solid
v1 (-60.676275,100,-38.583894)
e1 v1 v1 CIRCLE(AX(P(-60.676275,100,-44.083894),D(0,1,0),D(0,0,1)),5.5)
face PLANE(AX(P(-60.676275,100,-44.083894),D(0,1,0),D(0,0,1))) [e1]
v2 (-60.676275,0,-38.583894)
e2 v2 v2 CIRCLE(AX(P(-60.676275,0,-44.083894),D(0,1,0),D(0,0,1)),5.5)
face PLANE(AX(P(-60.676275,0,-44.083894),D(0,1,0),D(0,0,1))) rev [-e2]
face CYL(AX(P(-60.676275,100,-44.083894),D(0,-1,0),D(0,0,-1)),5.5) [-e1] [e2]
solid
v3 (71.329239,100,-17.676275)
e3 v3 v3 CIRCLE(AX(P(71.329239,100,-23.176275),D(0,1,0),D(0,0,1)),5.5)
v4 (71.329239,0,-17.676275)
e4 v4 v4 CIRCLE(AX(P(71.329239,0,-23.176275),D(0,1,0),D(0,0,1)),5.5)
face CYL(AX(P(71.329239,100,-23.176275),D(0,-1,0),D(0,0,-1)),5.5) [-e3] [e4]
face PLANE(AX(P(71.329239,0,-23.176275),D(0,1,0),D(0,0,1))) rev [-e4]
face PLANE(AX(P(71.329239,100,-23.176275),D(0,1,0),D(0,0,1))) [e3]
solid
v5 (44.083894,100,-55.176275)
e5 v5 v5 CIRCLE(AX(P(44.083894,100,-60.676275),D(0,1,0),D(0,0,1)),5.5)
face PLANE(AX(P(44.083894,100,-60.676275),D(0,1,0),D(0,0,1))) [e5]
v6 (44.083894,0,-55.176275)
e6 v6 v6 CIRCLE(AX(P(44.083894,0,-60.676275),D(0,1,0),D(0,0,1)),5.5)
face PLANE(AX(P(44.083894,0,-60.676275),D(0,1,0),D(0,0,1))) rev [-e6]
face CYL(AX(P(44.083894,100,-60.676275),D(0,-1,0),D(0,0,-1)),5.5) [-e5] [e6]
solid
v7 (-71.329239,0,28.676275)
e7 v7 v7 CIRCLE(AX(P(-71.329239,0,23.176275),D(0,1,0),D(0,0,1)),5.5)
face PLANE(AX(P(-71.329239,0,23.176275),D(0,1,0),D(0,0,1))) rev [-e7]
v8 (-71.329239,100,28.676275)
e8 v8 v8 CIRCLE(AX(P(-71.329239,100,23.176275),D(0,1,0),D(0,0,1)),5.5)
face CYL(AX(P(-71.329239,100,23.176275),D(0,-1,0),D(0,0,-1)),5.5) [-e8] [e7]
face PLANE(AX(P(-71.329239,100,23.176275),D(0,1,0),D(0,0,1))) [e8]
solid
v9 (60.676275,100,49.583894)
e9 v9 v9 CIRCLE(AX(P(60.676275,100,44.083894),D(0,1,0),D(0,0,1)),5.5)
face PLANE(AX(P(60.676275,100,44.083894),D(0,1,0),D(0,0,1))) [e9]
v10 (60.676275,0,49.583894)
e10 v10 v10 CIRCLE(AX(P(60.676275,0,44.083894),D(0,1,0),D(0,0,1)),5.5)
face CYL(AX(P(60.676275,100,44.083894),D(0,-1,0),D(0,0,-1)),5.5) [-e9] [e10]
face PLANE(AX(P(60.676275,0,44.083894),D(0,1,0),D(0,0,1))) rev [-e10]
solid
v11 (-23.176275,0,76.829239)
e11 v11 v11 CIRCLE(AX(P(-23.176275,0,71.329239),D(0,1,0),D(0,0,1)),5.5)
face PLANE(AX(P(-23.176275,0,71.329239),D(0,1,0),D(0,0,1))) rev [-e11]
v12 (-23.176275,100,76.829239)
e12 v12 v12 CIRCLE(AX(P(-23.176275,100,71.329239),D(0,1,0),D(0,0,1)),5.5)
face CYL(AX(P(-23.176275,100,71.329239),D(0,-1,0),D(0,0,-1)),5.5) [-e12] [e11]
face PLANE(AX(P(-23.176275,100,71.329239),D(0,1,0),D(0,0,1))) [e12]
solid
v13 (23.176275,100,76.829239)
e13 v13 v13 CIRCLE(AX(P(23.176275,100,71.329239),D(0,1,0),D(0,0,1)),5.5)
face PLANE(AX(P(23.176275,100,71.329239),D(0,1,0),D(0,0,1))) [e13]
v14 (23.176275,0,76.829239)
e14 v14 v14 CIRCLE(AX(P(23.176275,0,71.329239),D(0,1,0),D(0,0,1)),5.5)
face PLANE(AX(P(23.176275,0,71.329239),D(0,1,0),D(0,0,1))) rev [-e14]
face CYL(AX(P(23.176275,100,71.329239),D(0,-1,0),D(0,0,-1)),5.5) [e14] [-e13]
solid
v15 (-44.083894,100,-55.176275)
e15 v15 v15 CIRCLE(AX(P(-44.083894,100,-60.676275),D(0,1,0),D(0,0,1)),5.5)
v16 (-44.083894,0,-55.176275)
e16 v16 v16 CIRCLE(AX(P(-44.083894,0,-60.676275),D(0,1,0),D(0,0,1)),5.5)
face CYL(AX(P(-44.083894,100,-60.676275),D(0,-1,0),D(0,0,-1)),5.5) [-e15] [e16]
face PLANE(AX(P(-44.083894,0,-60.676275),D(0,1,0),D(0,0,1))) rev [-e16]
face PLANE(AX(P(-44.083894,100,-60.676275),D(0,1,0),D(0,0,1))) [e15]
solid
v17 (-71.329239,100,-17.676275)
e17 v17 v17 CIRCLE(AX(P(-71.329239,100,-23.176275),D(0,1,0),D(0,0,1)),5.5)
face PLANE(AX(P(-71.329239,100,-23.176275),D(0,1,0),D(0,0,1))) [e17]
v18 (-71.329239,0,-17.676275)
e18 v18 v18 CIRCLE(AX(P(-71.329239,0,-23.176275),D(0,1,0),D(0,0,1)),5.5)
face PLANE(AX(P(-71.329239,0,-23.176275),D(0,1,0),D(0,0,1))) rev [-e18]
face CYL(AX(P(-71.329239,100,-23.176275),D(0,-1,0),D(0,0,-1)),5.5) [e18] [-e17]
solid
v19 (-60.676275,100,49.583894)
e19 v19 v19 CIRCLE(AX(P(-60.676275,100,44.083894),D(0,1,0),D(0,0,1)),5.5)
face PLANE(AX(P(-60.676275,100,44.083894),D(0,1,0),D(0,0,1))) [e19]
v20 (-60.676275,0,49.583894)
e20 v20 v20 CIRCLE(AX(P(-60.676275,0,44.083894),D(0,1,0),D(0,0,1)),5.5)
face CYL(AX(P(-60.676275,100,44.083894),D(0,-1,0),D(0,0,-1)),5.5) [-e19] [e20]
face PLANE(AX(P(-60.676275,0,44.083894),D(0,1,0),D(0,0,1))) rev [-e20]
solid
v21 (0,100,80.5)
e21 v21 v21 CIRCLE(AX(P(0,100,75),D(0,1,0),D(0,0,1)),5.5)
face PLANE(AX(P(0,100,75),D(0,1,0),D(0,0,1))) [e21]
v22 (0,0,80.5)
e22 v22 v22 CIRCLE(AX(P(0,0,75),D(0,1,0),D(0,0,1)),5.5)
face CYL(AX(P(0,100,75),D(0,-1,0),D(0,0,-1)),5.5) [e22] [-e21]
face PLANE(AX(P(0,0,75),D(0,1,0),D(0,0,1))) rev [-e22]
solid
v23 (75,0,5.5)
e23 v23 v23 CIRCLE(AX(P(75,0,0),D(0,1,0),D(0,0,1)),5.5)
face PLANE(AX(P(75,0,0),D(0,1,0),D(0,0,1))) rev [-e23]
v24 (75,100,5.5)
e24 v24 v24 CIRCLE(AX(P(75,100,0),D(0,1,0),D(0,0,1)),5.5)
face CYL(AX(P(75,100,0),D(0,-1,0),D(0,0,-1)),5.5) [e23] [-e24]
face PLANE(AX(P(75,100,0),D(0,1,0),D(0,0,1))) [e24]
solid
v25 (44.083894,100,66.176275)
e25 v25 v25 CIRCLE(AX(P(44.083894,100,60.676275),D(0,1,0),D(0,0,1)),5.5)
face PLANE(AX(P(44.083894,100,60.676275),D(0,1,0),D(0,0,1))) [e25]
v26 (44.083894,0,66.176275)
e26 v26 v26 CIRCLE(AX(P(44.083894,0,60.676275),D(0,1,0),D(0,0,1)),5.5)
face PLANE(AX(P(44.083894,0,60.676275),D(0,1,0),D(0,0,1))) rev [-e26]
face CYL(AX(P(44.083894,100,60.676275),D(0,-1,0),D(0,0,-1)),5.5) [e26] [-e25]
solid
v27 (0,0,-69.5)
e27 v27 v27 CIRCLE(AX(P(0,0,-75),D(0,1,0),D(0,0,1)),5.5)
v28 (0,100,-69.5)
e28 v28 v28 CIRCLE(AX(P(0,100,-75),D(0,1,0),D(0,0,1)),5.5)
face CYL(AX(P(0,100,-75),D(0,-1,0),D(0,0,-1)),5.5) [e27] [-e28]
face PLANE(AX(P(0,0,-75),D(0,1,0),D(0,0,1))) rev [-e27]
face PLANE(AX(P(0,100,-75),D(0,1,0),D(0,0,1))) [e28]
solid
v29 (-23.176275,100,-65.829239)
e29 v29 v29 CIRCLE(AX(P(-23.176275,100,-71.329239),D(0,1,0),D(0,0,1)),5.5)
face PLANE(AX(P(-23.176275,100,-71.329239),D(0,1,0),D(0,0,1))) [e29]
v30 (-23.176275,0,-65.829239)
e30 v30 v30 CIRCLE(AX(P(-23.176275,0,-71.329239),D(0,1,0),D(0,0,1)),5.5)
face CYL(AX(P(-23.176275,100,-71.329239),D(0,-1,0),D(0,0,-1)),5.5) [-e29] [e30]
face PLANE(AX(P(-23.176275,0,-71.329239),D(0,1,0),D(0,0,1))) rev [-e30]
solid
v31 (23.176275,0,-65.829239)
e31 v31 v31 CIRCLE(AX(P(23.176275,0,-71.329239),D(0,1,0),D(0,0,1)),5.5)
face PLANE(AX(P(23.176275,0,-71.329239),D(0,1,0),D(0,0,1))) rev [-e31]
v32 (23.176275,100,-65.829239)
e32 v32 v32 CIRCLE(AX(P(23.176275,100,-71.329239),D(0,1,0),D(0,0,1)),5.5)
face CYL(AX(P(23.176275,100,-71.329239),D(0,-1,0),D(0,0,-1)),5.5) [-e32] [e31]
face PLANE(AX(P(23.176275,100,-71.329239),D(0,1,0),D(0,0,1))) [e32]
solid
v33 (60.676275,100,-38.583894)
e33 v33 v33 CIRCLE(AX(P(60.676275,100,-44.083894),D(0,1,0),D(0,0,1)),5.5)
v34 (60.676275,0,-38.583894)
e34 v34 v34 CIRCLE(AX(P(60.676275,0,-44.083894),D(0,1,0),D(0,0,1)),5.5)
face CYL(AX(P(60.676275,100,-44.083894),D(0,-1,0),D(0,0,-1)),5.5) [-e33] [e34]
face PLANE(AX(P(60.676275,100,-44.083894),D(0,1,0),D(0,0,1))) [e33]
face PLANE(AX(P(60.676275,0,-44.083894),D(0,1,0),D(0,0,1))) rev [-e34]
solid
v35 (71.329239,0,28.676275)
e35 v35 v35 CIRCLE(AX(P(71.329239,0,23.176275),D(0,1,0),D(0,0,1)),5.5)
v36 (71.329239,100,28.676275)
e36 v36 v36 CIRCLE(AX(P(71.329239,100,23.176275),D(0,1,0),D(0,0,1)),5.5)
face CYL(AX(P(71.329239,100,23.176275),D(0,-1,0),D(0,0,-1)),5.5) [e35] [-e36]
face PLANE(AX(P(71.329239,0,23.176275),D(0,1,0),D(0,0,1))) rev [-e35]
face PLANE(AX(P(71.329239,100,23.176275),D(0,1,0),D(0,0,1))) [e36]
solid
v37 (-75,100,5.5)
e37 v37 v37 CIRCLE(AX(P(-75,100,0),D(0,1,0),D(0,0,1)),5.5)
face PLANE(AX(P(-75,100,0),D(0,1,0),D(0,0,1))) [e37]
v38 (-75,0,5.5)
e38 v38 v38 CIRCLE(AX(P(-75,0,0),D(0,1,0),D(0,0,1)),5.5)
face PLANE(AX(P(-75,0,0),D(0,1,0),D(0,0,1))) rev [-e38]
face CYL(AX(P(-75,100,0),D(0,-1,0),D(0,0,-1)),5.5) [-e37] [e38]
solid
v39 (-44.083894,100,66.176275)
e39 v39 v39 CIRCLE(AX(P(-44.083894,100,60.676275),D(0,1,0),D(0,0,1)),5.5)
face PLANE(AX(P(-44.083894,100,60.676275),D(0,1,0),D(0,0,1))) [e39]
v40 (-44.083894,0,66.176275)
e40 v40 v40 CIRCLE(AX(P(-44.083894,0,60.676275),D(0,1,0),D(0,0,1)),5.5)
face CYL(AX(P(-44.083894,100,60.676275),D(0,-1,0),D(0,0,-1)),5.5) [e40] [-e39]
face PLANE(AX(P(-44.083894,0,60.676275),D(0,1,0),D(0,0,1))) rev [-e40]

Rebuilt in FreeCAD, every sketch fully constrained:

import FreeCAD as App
import Part
import Sketcher
Q = App.Units.Quantity

doc = App.newDocument("Part")
body = doc.addObject("PartDesign::Body", "Body")

# Sketch on XZ plane
sketch1 = doc.addObject("Sketcher::SketchObject", "Sketch")
body.addObject(sketch1)
sketch1.AttachmentSupport = (doc.XZ_Plane, [""])
sketch1.MapMode = "FlatFace"
sketch1.addGeometry(Part.Circle(App.Vector(0, -75, 0), App.Vector(0, 0, 1), 6), False)
sketch1.addConstraint(Sketcher.Constraint("PointOnObject", 0, 3, -2))
sketch1.addConstraint(Sketcher.Constraint("Diameter", 0, Q("11 mm")))
sketch1.addConstraint(Sketcher.Constraint("DistanceY", 0, 3, -1, 1, Q("75 mm")))
pad1 = doc.addObject("PartDesign::Pad", "Pad")
body.addObject(pad1)
pad1.Profile = sketch1
pad1.Length = 100
pad1.Reversed = True
body2 = doc.addObject("PartDesign::Body", "Body001")

# Sketch on XZ plane
sketch2 = doc.addObject("Sketcher::SketchObject", "Sketch001")
body2.addObject(sketch2)
sketch2.AttachmentSupport = (doc.getObject("XZ_Plane001"), [""])
sketch2.MapMode = "FlatFace"
sketch2.addGeometry(Part.Circle(App.Vector(23, -71, 0), App.Vector(0, 0, 1), 6), False)
sketch2.addConstraint(Sketcher.Constraint("Diameter", 0, Q("11 mm")))
sketch2.addConstraint(Sketcher.Constraint("DistanceY", 0, 3, -1, 1, Q("71.329239 mm")))
sketch2.addConstraint(Sketcher.Constraint("DistanceX", -1, 1, 0, 3, Q("23.176275 mm")))
pad2 = doc.addObject("PartDesign::Pad", "Pad001")
body2.addObject(pad2)
pad2.Profile = sketch2
pad2.Length = 100
pad2.Reversed = True
body3 = doc.addObject("PartDesign::Body", "Body002")

# Sketch on XZ plane
sketch3 = doc.addObject("Sketcher::SketchObject", "Sketch002")
body3.addObject(sketch3)
sketch3.AttachmentSupport = (doc.getObject("XZ_Plane002"), [""])
sketch3.MapMode = "FlatFace"
sketch3.addGeometry(Part.Circle(App.Vector(44, -61, 0), App.Vector(0, 0, 1), 6), False)
sketch3.addConstraint(Sketcher.Constraint("Diameter", 0, Q("11 mm")))
sketch3.addConstraint(Sketcher.Constraint("DistanceX", -1, 1, 0, 3, Q("44.083894 mm")))
sketch3.addConstraint(Sketcher.Constraint("DistanceY", 0, 3, -1, 1, Q("60.676275 mm")))
pad3 = doc.addObject("PartDesign::Pad", "Pad002")
body3.addObject(pad3)
pad3.Profile = sketch3
pad3.Length = 100
pad3.Reversed = True
body4 = doc.addObject("PartDesign::Body", "Body003")

# Sketch on XZ plane
sketch4 = doc.addObject("Sketcher::SketchObject", "Sketch003")
body4.addObject(sketch4)
sketch4.AttachmentSupport = (doc.getObject("XZ_Plane003"), [""])
sketch4.MapMode = "FlatFace"
sketch4.addGeometry(Part.Circle(App.Vector(61, -44, 0), App.Vector(0, 0, 1), 6), False)
sketch4.addConstraint(Sketcher.Constraint("Diameter", 0, Q("11 mm")))
sketch4.addConstraint(Sketcher.Constraint("DistanceX", -1, 1, 0, 3, Q("60.676275 mm")))
sketch4.addConstraint(Sketcher.Constraint("DistanceY", 0, 3, -1, 1, Q("44.083894 mm")))
pad4 = doc.addObject("PartDesign::Pad", "Pad003")
body4.addObject(pad4)
pad4.Profile = sketch4
pad4.Length = 100
pad4.Reversed = True
body5 = doc.addObject("PartDesign::Body", "Body004")

# Sketch on XZ plane
sketch5 = doc.addObject("Sketcher::SketchObject", "Sketch004")
body5.addObject(sketch5)
sketch5.AttachmentSupport = (doc.getObject("XZ_Plane004"), [""])
sketch5.MapMode = "FlatFace"
sketch5.addGeometry(Part.Circle(App.Vector(71, -23, 0), App.Vector(0, 0, 1), 6), False)
sketch5.addConstraint(Sketcher.Constraint("Diameter", 0, Q("11 mm")))
sketch5.addConstraint(Sketcher.Constraint("DistanceX", -1, 1, 0, 3, Q("71.329239 mm")))
sketch5.addConstraint(Sketcher.Constraint("DistanceY", 0, 3, -1, 1, Q("23.176275 mm")))
pad5 = doc.addObject("PartDesign::Pad", "Pad004")
body5.addObject(pad5)
pad5.Profile = sketch5
pad5.Length = 100
pad5.Reversed = True
body6 = doc.addObject("PartDesign::Body", "Body005")

# Sketch on XZ plane
sketch6 = doc.addObject("Sketcher::SketchObject", "Sketch005")
body6.addObject(sketch6)
sketch6.AttachmentSupport = (doc.getObject("XZ_Plane005"), [""])
sketch6.MapMode = "FlatFace"
sketch6.addGeometry(Part.Circle(App.Vector(75, 0, 0), App.Vector(0, 0, 1), 6), False)
sketch6.addConstraint(Sketcher.Constraint("PointOnObject", 0, 3, -1))
sketch6.addConstraint(Sketcher.Constraint("Diameter", 0, Q("11 mm")))
sketch6.addConstraint(Sketcher.Constraint("DistanceX", -1, 1, 0, 3, Q("75 mm")))
pad6 = doc.addObject("PartDesign::Pad", "Pad005")
body6.addObject(pad6)
pad6.Profile = sketch6
pad6.Length = 100
pad6.Reversed = True
body7 = doc.addObject("PartDesign::Body", "Body006")

# Sketch on XZ plane
sketch7 = doc.addObject("Sketcher::SketchObject", "Sketch006")
body7.addObject(sketch7)
sketch7.AttachmentSupport = (doc.getObject("XZ_Plane006"), [""])
sketch7.MapMode = "FlatFace"
sketch7.addGeometry(Part.Circle(App.Vector(71, 23, 0), App.Vector(0, 0, 1), 6), False)
sketch7.addConstraint(Sketcher.Constraint("Diameter", 0, Q("11 mm")))
sketch7.addConstraint(Sketcher.Constraint("DistanceX", -1, 1, 0, 3, Q("71.329239 mm")))
sketch7.addConstraint(Sketcher.Constraint("DistanceY", -1, 1, 0, 3, Q("23.176275 mm")))
pad7 = doc.addObject("PartDesign::Pad", "Pad006")
body7.addObject(pad7)
pad7.Profile = sketch7
pad7.Length = 100
pad7.Reversed = True
body8 = doc.addObject("PartDesign::Body", "Body007")

# Sketch on XZ plane
sketch8 = doc.addObject("Sketcher::SketchObject", "Sketch007")
body8.addObject(sketch8)
sketch8.AttachmentSupport = (doc.getObject("XZ_Plane007"), [""])
sketch8.MapMode = "FlatFace"
sketch8.addGeometry(Part.Circle(App.Vector(61, 44, 0), App.Vector(0, 0, 1), 6), False)
sketch8.addConstraint(Sketcher.Constraint("Diameter", 0, Q("11 mm")))
sketch8.addConstraint(Sketcher.Constraint("DistanceX", -1, 1, 0, 3, Q("60.676275 mm")))
sketch8.addConstraint(Sketcher.Constraint("DistanceY", -1, 1, 0, 3, Q("44.083894 mm")))
pad8 = doc.addObject("PartDesign::Pad", "Pad007")
body8.addObject(pad8)
pad8.Profile = sketch8
pad8.Length = 100
pad8.Reversed = True
body9 = doc.addObject("PartDesign::Body", "Body008")

# Sketch on XZ plane
sketch9 = doc.addObject("Sketcher::SketchObject", "Sketch008")
body9.addObject(sketch9)
sketch9.AttachmentSupport = (doc.getObject("XZ_Plane008"), [""])
sketch9.MapMode = "FlatFace"
sketch9.addGeometry(Part.Circle(App.Vector(44, 61, 0), App.Vector(0, 0, 1), 6), False)
sketch9.addConstraint(Sketcher.Constraint("Diameter", 0, Q("11 mm")))
sketch9.addConstraint(Sketcher.Constraint("DistanceX", -1, 1, 0, 3, Q("44.083894 mm")))
sketch9.addConstraint(Sketcher.Constraint("DistanceY", -1, 1, 0, 3, Q("60.676275 mm")))
pad9 = doc.addObject("PartDesign::Pad", "Pad008")
body9.addObject(pad9)
pad9.Profile = sketch9
pad9.Length = 100
pad9.Reversed = True
body10 = doc.addObject("PartDesign::Body", "Body009")

# Sketch on XZ plane
sketch10 = doc.addObject("Sketcher::SketchObject", "Sketch009")
body10.addObject(sketch10)
sketch10.AttachmentSupport = (doc.getObject("XZ_Plane009"), [""])
sketch10.MapMode = "FlatFace"
sketch10.addGeometry(Part.Circle(App.Vector(23, 71, 0), App.Vector(0, 0, 1), 6), False)
sketch10.addConstraint(Sketcher.Constraint("Diameter", 0, Q("11 mm")))
sketch10.addConstraint(Sketcher.Constraint("DistanceY", -1, 1, 0, 3, Q("71.329239 mm")))
sketch10.addConstraint(Sketcher.Constraint("DistanceX", -1, 1, 0, 3, Q("23.176275 mm")))
pad10 = doc.addObject("PartDesign::Pad", "Pad009")
body10.addObject(pad10)
pad10.Profile = sketch10
pad10.Length = 100
pad10.Reversed = True
body11 = doc.addObject("PartDesign::Body", "Body010")

# Sketch on XZ plane
sketch11 = doc.addObject("Sketcher::SketchObject", "Sketch010")
body11.addObject(sketch11)
sketch11.AttachmentSupport = (doc.getObject("XZ_Plane010"), [""])
sketch11.MapMode = "FlatFace"
sketch11.addGeometry(Part.Circle(App.Vector(0, 75, 0), App.Vector(0, 0, 1), 6), False)
sketch11.addConstraint(Sketcher.Constraint("PointOnObject", 0, 3, -2))
sketch11.addConstraint(Sketcher.Constraint("Diameter", 0, Q("11 mm")))
sketch11.addConstraint(Sketcher.Constraint("DistanceY", -1, 1, 0, 3, Q("75 mm")))
pad11 = doc.addObject("PartDesign::Pad", "Pad010")
body11.addObject(pad11)
pad11.Profile = sketch11
pad11.Length = 100
pad11.Reversed = True
body12 = doc.addObject("PartDesign::Body", "Body011")

# Sketch on XZ plane
sketch12 = doc.addObject("Sketcher::SketchObject", "Sketch011")
body12.addObject(sketch12)
sketch12.AttachmentSupport = (doc.getObject("XZ_Plane011"), [""])
sketch12.MapMode = "FlatFace"
sketch12.addGeometry(Part.Circle(App.Vector(-23, 71, 0), App.Vector(0, 0, 1), 6), False)
sketch12.addConstraint(Sketcher.Constraint("Diameter", 0, Q("11 mm")))
sketch12.addConstraint(Sketcher.Constraint("DistanceY", -1, 1, 0, 3, Q("71.329239 mm")))
sketch12.addConstraint(Sketcher.Constraint("DistanceX", 0, 3, -1, 1, Q("23.176275 mm")))
pad12 = doc.addObject("PartDesign::Pad", "Pad011")
body12.addObject(pad12)
pad12.Profile = sketch12
pad12.Length = 100
pad12.Reversed = True
body13 = doc.addObject("PartDesign::Body", "Body012")

# Sketch on XZ plane
sketch13 = doc.addObject("Sketcher::SketchObject", "Sketch012")
body13.addObject(sketch13)
sketch13.AttachmentSupport = (doc.getObject("XZ_Plane012"), [""])
sketch13.MapMode = "FlatFace"
sketch13.addGeometry(Part.Circle(App.Vector(-44, 61, 0), App.Vector(0, 0, 1), 6), False)
sketch13.addConstraint(Sketcher.Constraint("Diameter", 0, Q("11 mm")))
sketch13.addConstraint(Sketcher.Constraint("DistanceX", 0, 3, -1, 1, Q("44.083894 mm")))
sketch13.addConstraint(Sketcher.Constraint("DistanceY", -1, 1, 0, 3, Q("60.676275 mm")))
pad13 = doc.addObject("PartDesign::Pad", "Pad012")
body13.addObject(pad13)
pad13.Profile = sketch13
pad13.Length = 100
pad13.Reversed = True
body14 = doc.addObject("PartDesign::Body", "Body013")

# Sketch on XZ plane
sketch14 = doc.addObject("Sketcher::SketchObject", "Sketch013")
body14.addObject(sketch14)
sketch14.AttachmentSupport = (doc.getObject("XZ_Plane013"), [""])
sketch14.MapMode = "FlatFace"
sketch14.addGeometry(Part.Circle(App.Vector(-61, 44, 0), App.Vector(0, 0, 1), 6), False)
sketch14.addConstraint(Sketcher.Constraint("Diameter", 0, Q("11 mm")))
sketch14.addConstraint(Sketcher.Constraint("DistanceX", 0, 3, -1, 1, Q("60.676275 mm")))
sketch14.addConstraint(Sketcher.Constraint("DistanceY", -1, 1, 0, 3, Q("44.083894 mm")))
pad14 = doc.addObject("PartDesign::Pad", "Pad013")
body14.addObject(pad14)
pad14.Profile = sketch14
pad14.Length = 100
pad14.Reversed = True
body15 = doc.addObject("PartDesign::Body", "Body014")

# Sketch on XZ plane
sketch15 = doc.addObject("Sketcher::SketchObject", "Sketch014")
body15.addObject(sketch15)
sketch15.AttachmentSupport = (doc.getObject("XZ_Plane014"), [""])
sketch15.MapMode = "FlatFace"
sketch15.addGeometry(Part.Circle(App.Vector(-71, 23, 0), App.Vector(0, 0, 1), 6), False)
sketch15.addConstraint(Sketcher.Constraint("Diameter", 0, Q("11 mm")))
sketch15.addConstraint(Sketcher.Constraint("DistanceX", 0, 3, -1, 1, Q("71.329239 mm")))
sketch15.addConstraint(Sketcher.Constraint("DistanceY", -1, 1, 0, 3, Q("23.176275 mm")))
pad15 = doc.addObject("PartDesign::Pad", "Pad014")
body15.addObject(pad15)
pad15.Profile = sketch15
pad15.Length = 100
pad15.Reversed = True
body16 = doc.addObject("PartDesign::Body", "Body015")

# Sketch on XZ plane
sketch16 = doc.addObject("Sketcher::SketchObject", "Sketch015")
body16.addObject(sketch16)
sketch16.AttachmentSupport = (doc.getObject("XZ_Plane015"), [""])
sketch16.MapMode = "FlatFace"
sketch16.addGeometry(Part.Circle(App.Vector(-75, 0, 0), App.Vector(0, 0, 1), 6), False)
sketch16.addConstraint(Sketcher.Constraint("PointOnObject", 0, 3, -1))
sketch16.addConstraint(Sketcher.Constraint("Diameter", 0, Q("11 mm")))
sketch16.addConstraint(Sketcher.Constraint("DistanceX", 0, 3, -1, 1, Q("75 mm")))
pad16 = doc.addObject("PartDesign::Pad", "Pad015")
body16.addObject(pad16)
pad16.Profile = sketch16
pad16.Length = 100
pad16.Reversed = True
body17 = doc.addObject("PartDesign::Body", "Body016")

# Sketch on XZ plane
sketch17 = doc.addObject("Sketcher::SketchObject", "Sketch016")
body17.addObject(sketch17)
sketch17.AttachmentSupport = (doc.getObject("XZ_Plane016"), [""])
sketch17.MapMode = "FlatFace"
sketch17.addGeometry(Part.Circle(App.Vector(-71, -23, 0), App.Vector(0, 0, 1), 6), False)
sketch17.addConstraint(Sketcher.Constraint("Diameter", 0, Q("11 mm")))
sketch17.addConstraint(Sketcher.Constraint("DistanceX", 0, 3, -1, 1, Q("71.329239 mm")))
sketch17.addConstraint(Sketcher.Constraint("DistanceY", 0, 3, -1, 1, Q("23.176275 mm")))
pad17 = doc.addObject("PartDesign::Pad", "Pad016")
body17.addObject(pad17)
pad17.Profile = sketch17
pad17.Length = 100
pad17.Reversed = True
body18 = doc.addObject("PartDesign::Body", "Body017")

# Sketch on XZ plane
sketch18 = doc.addObject("Sketcher::SketchObject", "Sketch017")
body18.addObject(sketch18)
sketch18.AttachmentSupport = (doc.getObject("XZ_Plane017"), [""])
sketch18.MapMode = "FlatFace"
sketch18.addGeometry(Part.Circle(App.Vector(-61, -44, 0), App.Vector(0, 0, 1), 6), False)
sketch18.addConstraint(Sketcher.Constraint("Diameter", 0, Q("11 mm")))
sketch18.addConstraint(Sketcher.Constraint("DistanceX", 0, 3, -1, 1, Q("60.676275 mm")))
sketch18.addConstraint(Sketcher.Constraint("DistanceY", 0, 3, -1, 1, Q("44.083894 mm")))
pad18 = doc.addObject("PartDesign::Pad", "Pad017")
body18.addObject(pad18)
pad18.Profile = sketch18
pad18.Length = 100
pad18.Reversed = True
body19 = doc.addObject("PartDesign::Body", "Body018")

# Sketch on XZ plane
sketch19 = doc.addObject("Sketcher::SketchObject", "Sketch018")
body19.addObject(sketch19)
sketch19.AttachmentSupport = (doc.getObject("XZ_Plane018"), [""])
sketch19.MapMode = "FlatFace"
sketch19.addGeometry(Part.Circle(App.Vector(-44, -61, 0), App.Vector(0, 0, 1), 6), False)
sketch19.addConstraint(Sketcher.Constraint("Diameter", 0, Q("11 mm")))
sketch19.addConstraint(Sketcher.Constraint("DistanceX", 0, 3, -1, 1, Q("44.083894 mm")))
sketch19.addConstraint(Sketcher.Constraint("DistanceY", 0, 3, -1, 1, Q("60.676275 mm")))
pad19 = doc.addObject("PartDesign::Pad", "Pad018")
body19.addObject(pad19)
pad19.Profile = sketch19
pad19.Length = 100
pad19.Reversed = True
body20 = doc.addObject("PartDesign::Body", "Body019")

# Sketch on XZ plane
sketch20 = doc.addObject("Sketcher::SketchObject", "Sketch019")
body20.addObject(sketch20)
sketch20.AttachmentSupport = (doc.getObject("XZ_Plane019"), [""])
sketch20.MapMode = "FlatFace"
sketch20.addGeometry(Part.Circle(App.Vector(-23, -71, 0), App.Vector(0, 0, 1), 6), False)
sketch20.addConstraint(Sketcher.Constraint("Diameter", 0, Q("11 mm")))
sketch20.addConstraint(Sketcher.Constraint("DistanceY", 0, 3, -1, 1, Q("71.329239 mm")))
sketch20.addConstraint(Sketcher.Constraint("DistanceX", 0, 3, -1, 1, Q("23.176275 mm")))
pad20 = doc.addObject("PartDesign::Pad", "Pad019")
body20.addObject(pad20)
pad20.Profile = sketch20
pad20.Length = 100
pad20.Reversed = True

doc.recompute()
